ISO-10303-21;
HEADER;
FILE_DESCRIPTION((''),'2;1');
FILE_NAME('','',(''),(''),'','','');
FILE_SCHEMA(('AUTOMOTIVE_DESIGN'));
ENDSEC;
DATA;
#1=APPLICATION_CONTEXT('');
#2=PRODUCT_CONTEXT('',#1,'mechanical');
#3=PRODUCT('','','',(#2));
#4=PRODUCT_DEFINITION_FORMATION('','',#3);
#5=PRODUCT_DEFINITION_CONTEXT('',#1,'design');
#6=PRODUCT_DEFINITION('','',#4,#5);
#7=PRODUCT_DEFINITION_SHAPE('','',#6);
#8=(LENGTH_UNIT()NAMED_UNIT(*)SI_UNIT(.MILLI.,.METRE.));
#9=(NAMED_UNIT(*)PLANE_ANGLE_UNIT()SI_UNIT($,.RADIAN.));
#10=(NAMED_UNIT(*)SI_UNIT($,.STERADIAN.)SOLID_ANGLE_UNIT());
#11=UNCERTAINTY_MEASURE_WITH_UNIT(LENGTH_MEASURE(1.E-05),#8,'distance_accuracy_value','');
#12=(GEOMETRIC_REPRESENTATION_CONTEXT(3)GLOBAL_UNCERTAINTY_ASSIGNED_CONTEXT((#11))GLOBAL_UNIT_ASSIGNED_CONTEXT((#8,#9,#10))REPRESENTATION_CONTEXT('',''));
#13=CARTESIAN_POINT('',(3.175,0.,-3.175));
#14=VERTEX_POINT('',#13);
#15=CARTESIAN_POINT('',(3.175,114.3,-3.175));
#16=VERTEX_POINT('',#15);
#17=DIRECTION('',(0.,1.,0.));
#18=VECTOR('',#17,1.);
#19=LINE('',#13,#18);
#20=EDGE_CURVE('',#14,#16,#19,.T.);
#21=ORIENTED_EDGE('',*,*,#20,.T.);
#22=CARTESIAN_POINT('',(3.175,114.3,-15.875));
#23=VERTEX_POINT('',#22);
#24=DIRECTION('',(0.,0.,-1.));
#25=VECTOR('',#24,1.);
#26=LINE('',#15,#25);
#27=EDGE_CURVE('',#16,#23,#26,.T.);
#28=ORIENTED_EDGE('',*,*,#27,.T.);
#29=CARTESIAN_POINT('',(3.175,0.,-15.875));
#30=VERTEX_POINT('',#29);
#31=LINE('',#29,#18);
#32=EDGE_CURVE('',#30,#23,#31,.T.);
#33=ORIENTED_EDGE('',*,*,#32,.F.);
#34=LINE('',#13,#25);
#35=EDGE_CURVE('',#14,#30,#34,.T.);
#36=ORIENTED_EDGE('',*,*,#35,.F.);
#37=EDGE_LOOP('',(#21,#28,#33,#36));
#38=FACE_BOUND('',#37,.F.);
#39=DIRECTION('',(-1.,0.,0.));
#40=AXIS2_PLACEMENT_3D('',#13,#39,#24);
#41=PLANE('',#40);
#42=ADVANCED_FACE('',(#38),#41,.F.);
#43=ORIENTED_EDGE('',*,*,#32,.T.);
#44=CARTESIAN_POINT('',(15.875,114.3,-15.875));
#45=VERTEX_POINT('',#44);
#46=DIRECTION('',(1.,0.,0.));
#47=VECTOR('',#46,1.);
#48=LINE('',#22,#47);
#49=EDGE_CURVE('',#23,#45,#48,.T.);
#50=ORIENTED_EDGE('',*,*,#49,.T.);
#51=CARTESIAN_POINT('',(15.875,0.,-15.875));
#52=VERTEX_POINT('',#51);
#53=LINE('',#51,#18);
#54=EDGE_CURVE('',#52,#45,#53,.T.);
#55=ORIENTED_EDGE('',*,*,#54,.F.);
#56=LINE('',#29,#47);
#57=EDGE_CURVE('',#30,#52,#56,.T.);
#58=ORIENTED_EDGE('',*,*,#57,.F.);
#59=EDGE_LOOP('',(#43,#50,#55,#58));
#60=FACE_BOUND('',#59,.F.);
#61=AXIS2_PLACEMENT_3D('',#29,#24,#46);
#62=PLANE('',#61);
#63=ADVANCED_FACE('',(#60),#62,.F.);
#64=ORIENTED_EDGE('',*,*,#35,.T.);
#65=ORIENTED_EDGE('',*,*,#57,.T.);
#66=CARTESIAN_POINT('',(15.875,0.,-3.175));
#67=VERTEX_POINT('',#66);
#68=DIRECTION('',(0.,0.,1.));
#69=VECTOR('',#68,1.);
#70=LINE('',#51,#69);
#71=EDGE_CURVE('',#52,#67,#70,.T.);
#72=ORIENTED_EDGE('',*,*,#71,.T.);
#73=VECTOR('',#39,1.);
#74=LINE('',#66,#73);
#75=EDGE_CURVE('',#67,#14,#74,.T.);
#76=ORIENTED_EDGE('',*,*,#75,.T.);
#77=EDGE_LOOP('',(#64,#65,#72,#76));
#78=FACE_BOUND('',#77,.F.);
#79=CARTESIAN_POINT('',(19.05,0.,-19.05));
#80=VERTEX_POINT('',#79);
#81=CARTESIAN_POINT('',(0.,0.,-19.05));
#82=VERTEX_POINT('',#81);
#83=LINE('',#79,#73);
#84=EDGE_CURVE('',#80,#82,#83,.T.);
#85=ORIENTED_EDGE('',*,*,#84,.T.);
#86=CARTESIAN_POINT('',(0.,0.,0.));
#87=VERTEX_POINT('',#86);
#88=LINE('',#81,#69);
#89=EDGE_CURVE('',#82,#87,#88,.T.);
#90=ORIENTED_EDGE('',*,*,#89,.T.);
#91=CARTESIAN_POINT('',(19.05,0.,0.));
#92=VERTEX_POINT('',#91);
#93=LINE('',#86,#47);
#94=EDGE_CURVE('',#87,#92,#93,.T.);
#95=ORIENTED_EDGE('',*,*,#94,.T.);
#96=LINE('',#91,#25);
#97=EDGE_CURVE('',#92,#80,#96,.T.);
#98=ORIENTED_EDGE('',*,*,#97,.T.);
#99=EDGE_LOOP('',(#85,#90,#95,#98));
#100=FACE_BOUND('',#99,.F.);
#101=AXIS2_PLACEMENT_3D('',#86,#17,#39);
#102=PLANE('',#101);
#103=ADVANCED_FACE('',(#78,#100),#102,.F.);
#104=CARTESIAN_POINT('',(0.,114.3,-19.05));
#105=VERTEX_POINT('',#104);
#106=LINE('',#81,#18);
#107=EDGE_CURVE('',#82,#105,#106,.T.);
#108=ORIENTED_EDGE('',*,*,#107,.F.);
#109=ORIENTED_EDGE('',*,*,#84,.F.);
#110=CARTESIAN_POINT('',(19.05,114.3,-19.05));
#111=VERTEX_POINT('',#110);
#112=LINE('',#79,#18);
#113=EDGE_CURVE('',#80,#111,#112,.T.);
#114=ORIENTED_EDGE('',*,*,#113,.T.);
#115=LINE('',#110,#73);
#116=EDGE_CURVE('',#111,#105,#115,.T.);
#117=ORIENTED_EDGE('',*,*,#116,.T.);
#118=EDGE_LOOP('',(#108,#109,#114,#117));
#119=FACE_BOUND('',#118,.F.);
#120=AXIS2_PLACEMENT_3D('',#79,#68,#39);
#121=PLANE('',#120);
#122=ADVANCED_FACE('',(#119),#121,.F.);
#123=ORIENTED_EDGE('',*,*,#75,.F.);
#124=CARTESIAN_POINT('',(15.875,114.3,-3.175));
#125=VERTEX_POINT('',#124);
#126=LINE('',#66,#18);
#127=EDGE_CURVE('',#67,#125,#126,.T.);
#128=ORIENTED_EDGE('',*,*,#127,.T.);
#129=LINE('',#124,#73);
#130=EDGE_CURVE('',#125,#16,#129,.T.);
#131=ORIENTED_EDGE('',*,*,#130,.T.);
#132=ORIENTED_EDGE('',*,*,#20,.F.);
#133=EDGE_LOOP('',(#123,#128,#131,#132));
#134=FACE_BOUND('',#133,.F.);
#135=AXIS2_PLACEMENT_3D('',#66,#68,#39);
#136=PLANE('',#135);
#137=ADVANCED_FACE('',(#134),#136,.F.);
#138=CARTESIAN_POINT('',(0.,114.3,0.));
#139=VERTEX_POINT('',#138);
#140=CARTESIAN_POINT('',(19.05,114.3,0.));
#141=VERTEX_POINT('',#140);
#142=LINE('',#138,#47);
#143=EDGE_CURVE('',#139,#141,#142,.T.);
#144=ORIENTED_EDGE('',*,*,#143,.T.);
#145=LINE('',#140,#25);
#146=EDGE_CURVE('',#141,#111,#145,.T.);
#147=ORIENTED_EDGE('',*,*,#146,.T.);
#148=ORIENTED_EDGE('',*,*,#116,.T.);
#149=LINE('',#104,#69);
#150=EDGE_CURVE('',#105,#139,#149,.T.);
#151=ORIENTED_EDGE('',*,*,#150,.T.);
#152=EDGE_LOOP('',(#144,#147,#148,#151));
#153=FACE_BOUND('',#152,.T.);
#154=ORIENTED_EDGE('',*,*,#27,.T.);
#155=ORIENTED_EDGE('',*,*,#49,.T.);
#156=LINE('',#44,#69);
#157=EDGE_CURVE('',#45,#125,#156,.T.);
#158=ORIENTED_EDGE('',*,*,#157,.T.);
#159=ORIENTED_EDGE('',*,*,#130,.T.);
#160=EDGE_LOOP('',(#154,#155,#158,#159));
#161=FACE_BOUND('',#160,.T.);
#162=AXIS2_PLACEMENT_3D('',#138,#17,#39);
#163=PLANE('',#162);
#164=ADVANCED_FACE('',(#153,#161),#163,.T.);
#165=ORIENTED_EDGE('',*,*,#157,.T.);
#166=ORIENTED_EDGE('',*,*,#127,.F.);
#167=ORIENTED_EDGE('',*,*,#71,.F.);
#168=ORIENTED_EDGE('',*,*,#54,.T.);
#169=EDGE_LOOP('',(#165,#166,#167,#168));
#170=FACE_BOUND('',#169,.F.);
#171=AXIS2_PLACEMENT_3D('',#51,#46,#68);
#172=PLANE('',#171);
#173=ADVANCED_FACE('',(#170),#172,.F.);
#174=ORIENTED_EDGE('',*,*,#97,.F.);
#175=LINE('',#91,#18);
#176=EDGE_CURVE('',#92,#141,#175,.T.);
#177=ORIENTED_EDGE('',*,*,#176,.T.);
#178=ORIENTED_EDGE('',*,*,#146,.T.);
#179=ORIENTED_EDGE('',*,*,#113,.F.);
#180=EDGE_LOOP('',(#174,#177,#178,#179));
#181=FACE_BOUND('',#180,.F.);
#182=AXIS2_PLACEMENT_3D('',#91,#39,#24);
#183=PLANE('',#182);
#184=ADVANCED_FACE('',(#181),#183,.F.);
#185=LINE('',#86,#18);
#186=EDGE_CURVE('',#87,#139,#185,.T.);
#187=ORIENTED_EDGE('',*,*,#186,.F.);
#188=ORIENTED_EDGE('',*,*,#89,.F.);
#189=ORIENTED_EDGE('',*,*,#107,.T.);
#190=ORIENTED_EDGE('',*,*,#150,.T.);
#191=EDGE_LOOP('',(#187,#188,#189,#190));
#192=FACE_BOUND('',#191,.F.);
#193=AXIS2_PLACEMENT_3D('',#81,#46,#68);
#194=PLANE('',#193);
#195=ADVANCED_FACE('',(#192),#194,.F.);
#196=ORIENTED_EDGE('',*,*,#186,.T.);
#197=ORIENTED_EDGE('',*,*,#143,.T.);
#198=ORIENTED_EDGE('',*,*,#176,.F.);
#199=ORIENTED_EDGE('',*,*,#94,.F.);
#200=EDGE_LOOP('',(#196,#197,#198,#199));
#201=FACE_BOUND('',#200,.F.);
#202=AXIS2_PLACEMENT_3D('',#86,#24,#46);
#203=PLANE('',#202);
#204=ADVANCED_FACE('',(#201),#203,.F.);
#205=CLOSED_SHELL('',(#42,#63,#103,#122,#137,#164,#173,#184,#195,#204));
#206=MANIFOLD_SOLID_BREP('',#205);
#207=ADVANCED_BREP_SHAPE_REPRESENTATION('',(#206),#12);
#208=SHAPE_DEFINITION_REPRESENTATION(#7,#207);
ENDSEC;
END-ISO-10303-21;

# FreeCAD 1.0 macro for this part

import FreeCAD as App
import Part
import Sketcher
Q = App.Units.Quantity


def add_polygon(sketch, points):
    """Adds a closed chain of lines whose ends are joined by coincident constraints."""
    first, n = sketch.GeometryCount, len(points)
    for a, b in zip(points, points[1:] + points[:1]):
        sketch.addGeometry(Part.LineSegment(App.Vector(*a, 0), App.Vector(*b, 0)), False)
    for i in range(n):
        sketch.addConstraint(Sketcher.Constraint("Coincident", first + i, 2, first + (i + 1) % n, 1))

doc = App.newDocument("Part")
body = doc.addObject("PartDesign::Body", "Body")

sketch1 = body.newObject("Sketcher::SketchObject", "Sketch")
sketch1.AttachmentSupport = (doc.getObject("XZ_Plane"), [""])
sketch1.MapMode = "FlatFace"
add_polygon(sketch1, [(0, -19.05), (0, 0), (19.05, 0), (19.05, -19.05)])
add_polygon(sketch1, [(3.175, -3.175), (3.175, -15.875), (15.875, -15.875), (15.875, -3.175)])
sketch1.addConstraint([
    Sketcher.Constraint("Vertical", 0),
    Sketcher.Constraint("Horizontal", 1),
    Sketcher.Constraint("Vertical", 2),
    Sketcher.Constraint("Horizontal", 3),
    Sketcher.Constraint("Vertical", 4),
    Sketcher.Constraint("Horizontal", 5),
    Sketcher.Constraint("Vertical", 6),
    Sketcher.Constraint("Horizontal", 7),
    Sketcher.Constraint("Coincident", 0, 2, -1, 1),
    Sketcher.Constraint("Equal", 3, 0),
    Sketcher.Constraint("Equal", 7, 4),
    Sketcher.Constraint("DistanceX", 1, 1, 1, 2, Q("0.75 in")),
    Sketcher.Constraint("DistanceX", 5, 1, 5, 2, Q("0.5 in")),
    Sketcher.Constraint("DistanceX", -1, 1, 4, 2, Q("0.125 in")),
    Sketcher.Constraint("DistanceY", 6, 2, -1, 1, Q("0.125 in")),
])
pad1 = body.newObject("PartDesign::Pad", "Pad")
pad1.Profile = sketch1
pad1.Length = Q("4.5 in")
pad1.Reversed = True

doc.recompute()
